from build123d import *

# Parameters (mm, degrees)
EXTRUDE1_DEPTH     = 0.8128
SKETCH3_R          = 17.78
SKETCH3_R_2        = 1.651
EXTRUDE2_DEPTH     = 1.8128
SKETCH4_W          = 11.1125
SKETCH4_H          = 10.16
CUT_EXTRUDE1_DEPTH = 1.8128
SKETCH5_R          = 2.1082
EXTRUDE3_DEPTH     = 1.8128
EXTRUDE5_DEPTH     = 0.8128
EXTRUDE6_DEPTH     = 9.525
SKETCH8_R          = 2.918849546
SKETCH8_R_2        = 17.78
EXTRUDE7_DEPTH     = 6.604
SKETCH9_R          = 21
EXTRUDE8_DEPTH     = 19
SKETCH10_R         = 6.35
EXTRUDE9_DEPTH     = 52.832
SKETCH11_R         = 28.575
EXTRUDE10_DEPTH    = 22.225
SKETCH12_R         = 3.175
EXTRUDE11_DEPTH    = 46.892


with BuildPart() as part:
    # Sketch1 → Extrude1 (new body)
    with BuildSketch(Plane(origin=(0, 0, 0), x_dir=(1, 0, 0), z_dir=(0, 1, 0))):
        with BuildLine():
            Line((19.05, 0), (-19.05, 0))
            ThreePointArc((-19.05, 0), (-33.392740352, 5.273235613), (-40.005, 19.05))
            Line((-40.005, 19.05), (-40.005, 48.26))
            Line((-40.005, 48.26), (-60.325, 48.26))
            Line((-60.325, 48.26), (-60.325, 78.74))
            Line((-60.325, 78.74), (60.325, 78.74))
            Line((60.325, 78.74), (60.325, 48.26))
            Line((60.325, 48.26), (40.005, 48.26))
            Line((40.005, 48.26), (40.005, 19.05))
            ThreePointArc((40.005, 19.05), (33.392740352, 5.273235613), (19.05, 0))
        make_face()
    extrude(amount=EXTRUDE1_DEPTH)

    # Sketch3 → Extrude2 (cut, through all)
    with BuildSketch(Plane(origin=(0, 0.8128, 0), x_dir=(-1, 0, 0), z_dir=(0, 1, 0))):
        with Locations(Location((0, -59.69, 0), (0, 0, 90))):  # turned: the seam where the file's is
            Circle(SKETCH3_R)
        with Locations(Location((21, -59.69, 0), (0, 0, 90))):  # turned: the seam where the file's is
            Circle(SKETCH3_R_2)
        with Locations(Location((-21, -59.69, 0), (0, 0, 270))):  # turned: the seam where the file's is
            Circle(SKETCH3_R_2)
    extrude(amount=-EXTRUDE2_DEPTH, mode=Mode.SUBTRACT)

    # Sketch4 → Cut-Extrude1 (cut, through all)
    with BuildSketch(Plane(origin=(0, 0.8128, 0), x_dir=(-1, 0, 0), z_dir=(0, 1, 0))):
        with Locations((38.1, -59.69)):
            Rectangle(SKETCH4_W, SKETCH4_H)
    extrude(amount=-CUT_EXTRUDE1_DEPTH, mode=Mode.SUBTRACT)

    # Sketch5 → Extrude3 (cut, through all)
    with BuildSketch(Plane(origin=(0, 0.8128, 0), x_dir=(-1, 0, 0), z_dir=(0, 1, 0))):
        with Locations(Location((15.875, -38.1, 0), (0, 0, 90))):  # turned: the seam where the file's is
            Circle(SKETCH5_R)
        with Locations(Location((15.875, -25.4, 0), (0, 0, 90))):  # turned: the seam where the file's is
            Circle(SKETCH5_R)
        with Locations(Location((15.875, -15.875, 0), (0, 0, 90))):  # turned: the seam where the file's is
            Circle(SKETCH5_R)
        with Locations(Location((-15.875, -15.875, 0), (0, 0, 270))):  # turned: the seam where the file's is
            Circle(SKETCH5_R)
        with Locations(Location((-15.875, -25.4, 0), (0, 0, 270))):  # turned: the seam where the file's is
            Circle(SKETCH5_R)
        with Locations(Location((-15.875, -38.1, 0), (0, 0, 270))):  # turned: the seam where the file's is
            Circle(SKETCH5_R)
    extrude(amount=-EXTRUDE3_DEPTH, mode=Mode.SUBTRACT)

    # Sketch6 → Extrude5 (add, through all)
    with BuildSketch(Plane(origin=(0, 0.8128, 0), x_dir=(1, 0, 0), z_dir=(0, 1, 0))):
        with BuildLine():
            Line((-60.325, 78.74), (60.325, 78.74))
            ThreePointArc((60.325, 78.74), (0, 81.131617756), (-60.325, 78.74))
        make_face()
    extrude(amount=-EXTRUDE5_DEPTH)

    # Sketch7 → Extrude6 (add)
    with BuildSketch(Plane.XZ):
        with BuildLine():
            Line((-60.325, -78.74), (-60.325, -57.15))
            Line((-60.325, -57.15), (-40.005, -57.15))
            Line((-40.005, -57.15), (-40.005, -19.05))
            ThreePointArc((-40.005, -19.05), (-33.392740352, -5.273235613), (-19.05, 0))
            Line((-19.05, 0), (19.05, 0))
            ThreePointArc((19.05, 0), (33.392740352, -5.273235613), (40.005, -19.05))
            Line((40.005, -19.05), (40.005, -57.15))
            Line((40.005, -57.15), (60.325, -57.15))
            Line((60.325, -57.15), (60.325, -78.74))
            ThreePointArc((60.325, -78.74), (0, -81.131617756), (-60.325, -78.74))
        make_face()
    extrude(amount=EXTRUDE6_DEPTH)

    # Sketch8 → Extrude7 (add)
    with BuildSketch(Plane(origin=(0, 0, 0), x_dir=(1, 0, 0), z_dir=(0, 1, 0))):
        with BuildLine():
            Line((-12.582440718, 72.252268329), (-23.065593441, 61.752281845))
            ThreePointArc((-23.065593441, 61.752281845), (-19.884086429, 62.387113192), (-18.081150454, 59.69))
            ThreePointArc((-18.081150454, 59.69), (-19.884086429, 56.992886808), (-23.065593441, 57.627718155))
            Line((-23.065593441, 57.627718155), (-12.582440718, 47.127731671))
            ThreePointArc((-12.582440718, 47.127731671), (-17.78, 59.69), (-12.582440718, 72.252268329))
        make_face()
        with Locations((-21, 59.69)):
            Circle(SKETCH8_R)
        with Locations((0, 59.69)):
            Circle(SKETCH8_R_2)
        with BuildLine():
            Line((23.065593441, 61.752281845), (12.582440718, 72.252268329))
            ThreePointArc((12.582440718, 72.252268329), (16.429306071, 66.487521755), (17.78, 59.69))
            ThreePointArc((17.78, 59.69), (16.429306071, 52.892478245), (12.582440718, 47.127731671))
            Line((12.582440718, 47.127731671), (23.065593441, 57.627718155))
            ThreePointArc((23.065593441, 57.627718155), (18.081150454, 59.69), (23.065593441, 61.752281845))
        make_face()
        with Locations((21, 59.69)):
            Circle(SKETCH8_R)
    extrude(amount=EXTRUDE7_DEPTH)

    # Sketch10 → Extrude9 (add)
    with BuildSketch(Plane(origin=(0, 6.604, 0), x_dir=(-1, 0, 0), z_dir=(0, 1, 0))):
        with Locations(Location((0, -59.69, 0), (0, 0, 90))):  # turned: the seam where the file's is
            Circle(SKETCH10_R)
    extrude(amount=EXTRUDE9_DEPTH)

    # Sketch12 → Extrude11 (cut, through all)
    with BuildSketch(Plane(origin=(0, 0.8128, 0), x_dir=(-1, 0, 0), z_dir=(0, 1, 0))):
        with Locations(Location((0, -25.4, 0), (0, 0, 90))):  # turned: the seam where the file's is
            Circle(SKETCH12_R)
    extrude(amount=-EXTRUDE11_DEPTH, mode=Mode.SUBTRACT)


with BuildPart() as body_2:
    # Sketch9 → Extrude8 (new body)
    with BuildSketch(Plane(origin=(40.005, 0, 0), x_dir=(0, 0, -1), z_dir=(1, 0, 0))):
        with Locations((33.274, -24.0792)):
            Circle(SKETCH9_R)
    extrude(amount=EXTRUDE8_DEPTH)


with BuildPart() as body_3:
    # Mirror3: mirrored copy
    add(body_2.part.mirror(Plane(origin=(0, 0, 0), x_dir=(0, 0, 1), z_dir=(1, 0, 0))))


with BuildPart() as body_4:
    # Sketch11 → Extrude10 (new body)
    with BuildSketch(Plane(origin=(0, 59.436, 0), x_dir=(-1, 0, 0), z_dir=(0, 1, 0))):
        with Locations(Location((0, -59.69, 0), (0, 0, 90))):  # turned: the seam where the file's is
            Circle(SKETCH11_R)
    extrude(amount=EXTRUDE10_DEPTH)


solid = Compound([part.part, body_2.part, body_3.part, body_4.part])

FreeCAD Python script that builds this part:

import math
import FreeCAD as App
import Part
import Sketcher
from FreeCAD import Vector
Q = App.Units.Quantity


def add_polygon(sketch, points):
    """Adds a closed chain of lines whose ends are joined by coincident constraints."""
    first, n = sketch.GeometryCount, len(points)
    for a, b in zip(points, points[1:] + points[:1]):
        sketch.addGeometry(Part.LineSegment(App.Vector(*a, 0), App.Vector(*b, 0)), False)
    for i in range(n):
        sketch.addConstraint(Sketcher.Constraint("Coincident", first + i, 2, first + (i + 1) % n, 1))

doc = App.newDocument("Part")
body = doc.addObject("PartDesign::Body", "Body")

sketch1 = doc.addObject("Sketcher::SketchObject", "Sketch")
body.addObject(sketch1)
sketch1.AttachmentSupport = (doc.XZ_Plane, [""])
sketch1.MapMode = "FlatFace"
sketch1.addGeometry(Part.LineSegment(Vector(-19, 0, 0), Vector(19, 0, 0)), False)
sketch1.addGeometry(Part.ArcOfCircle(Part.Circle(Vector(20, -20, 0), Vector(0, 0, 1), 20), math.radians(4), math.radians(92)), False)
sketch1.addGeometry(Part.LineSegment(Vector(40, -19, 0), Vector(40, -48, 0)), False)
sketch1.addGeometry(Part.LineSegment(Vector(40, -48, 0), Vector(60, -48, 0)), False)
sketch1.addGeometry(Part.LineSegment(Vector(60, -48, 0), Vector(60, -79, 0)), False)
sketch1.addGeometry(Part.LineSegment(Vector(60, -79, 0), Vector(-60, -79, 0)), False)
sketch1.addGeometry(Part.LineSegment(Vector(-60, -79, 0), Vector(-60, -48, 0)), False)
sketch1.addGeometry(Part.LineSegment(Vector(-60, -48, 0), Vector(-40, -48, 0)), False)
sketch1.addGeometry(Part.LineSegment(Vector(-40, -48, 0), Vector(-40, -19, 0)), False)
sketch1.addGeometry(Part.ArcOfCircle(Part.Circle(Vector(-20, -20, 0), Vector(0, 0, 1), 20), math.radians(88), math.radians(176)), False)
sketch1.addConstraint(Sketcher.Constraint("Coincident", 0, 2, 1, 2))
sketch1.addConstraint(Sketcher.Constraint("Coincident", 1, 1, 2, 1))
sketch1.addConstraint(Sketcher.Constraint("Coincident", 2, 2, 3, 1))
sketch1.addConstraint(Sketcher.Constraint("Coincident", 3, 2, 4, 1))
sketch1.addConstraint(Sketcher.Constraint("Coincident", 4, 2, 5, 1))
sketch1.addConstraint(Sketcher.Constraint("Coincident", 5, 2, 6, 1))
sketch1.addConstraint(Sketcher.Constraint("Coincident", 6, 2, 7, 1))
sketch1.addConstraint(Sketcher.Constraint("Coincident", 7, 2, 8, 1))
sketch1.addConstraint(Sketcher.Constraint("Coincident", 8, 2, 9, 2))
sketch1.addConstraint(Sketcher.Constraint("Coincident", 9, 1, 0, 1))
sketch1.addConstraint(Sketcher.Constraint("Horizontal", 0))
sketch1.addConstraint(Sketcher.Constraint("Vertical", 2))
sketch1.addConstraint(Sketcher.Constraint("Horizontal", 3))
sketch1.addConstraint(Sketcher.Constraint("Vertical", 4))
sketch1.addConstraint(Sketcher.Constraint("Horizontal", 5))
sketch1.addConstraint(Sketcher.Constraint("Vertical", 6))
sketch1.addConstraint(Sketcher.Constraint("Horizontal", 7))
sketch1.addConstraint(Sketcher.Constraint("Vertical", 8))
sketch1.addConstraint(Sketcher.Constraint("Equal", 1, 9))
sketch1.addConstraint(Sketcher.Constraint("Symmetric", 0, 2, 9, 1, -1, 1))
sketch1.addConstraint(Sketcher.Constraint("Symmetric", 3, 2, 6, 2, -2))
sketch1.addConstraint(Sketcher.Constraint("Symmetric", 1, 1, 8, 2, -2))
sketch1.addConstraint(Sketcher.Constraint("Radius", 1, Q("0.8 in")))
sketch1.addConstraint(Sketcher.Constraint("DistanceX", 0, 1, 0, 2, Q("1.5 in")))
sketch1.addConstraint(Sketcher.Constraint("DistanceX", 3, 1, 3, 2, Q("0.8 in")))
sketch1.addConstraint(Sketcher.Constraint("DistanceY", 4, 2, 4, 1, Q("1.2 in")))
sketch1.addConstraint(Sketcher.Constraint("DistanceX", 5, 2, 5, 1, Q("4.75 in")))
sketch1.addConstraint(Sketcher.Constraint("DistanceY", 2, 2, 2, 1, Q("1.15 in")))
sketch1.addConstraint(Sketcher.Constraint("DistanceY", 2, 2, -1, 1, Q("1.9 in")))
pad1 = doc.addObject("PartDesign::Pad", "Pad")
body.addObject(pad1)
pad1.Profile = sketch1
pad1.Length = Q("0.032 in")
pad1.Reversed = True

sketch2 = doc.addObject("Sketcher::SketchObject", "Sketch001")
body.addObject(sketch2)
sketch2.AttachmentSupport = (doc.XZ_Plane, [""])
sketch2.MapMode = "FlatFace"
sketch2.AttachmentOffset = App.Placement(Vector(0, 0, -0.032 * 25.4), App.Rotation())
sketch2.addGeometry(Part.Circle(Vector(0, -59.7, 0), Vector(0, 0, 1), 17.8), False)
sketch2.addGeometry(Part.Circle(Vector(-21, -59.7, 0), Vector(0, 0, 1), 1.7), False)
sketch2.addGeometry(Part.Circle(Vector(21, -59.7, 0), Vector(0, 0, 1), 1.7), False)
sketch2.addConstraint(Sketcher.Constraint("Equal", 1, 2))
sketch2.addConstraint(Sketcher.Constraint("Symmetric", 1, 3, 2, 3, -2))
sketch2.addConstraint(Sketcher.Constraint("PointOnObject", 0, 3, -2))
sketch2.addConstraint(Sketcher.Constraint("Horizontal", 0, 3, 1, 3))
sketch2.addConstraint(Sketcher.Constraint("Diameter", 0, Q("1.4 in")))
sketch2.addConstraint(Sketcher.Constraint("Diameter", 1, Q("0.13 in")))
sketch2.addConstraint(Sketcher.Constraint("DistanceY", 0, 3, -1, 1, Q("2.35 in")))
sketch2.addConstraint(Sketcher.Constraint("DistanceX", 1, 3, -1, 1, Q("21 mm")))
pocket1 = doc.addObject("PartDesign::Pocket", "Pocket")
body.addObject(pocket1)
pocket1.Profile = sketch2
pocket1.Type = "ThroughAll"
pocket1.Reversed = True

sketch3 = doc.addObject("Sketcher::SketchObject", "Sketch002")
body.addObject(sketch3)
sketch3.AttachmentSupport = (doc.XZ_Plane, [""])
sketch3.MapMode = "FlatFace"
sketch3.AttachmentOffset = App.Placement(Vector(0, 0, -0.032 * 25.4), App.Rotation())
add_polygon(sketch3, [(-33, -55), (-33, -65), (-44, -65), (-44, -55)])
sketch3.addConstraint(Sketcher.Constraint("Vertical", 0))
sketch3.addConstraint(Sketcher.Constraint("Horizontal", 1))
sketch3.addConstraint(Sketcher.Constraint("Vertical", 2))
sketch3.addConstraint(Sketcher.Constraint("Horizontal", 3))
sketch3.addConstraint(Sketcher.Constraint("DistanceY", 0, 2, 0, 1, Q("0.4 in")))
sketch3.addConstraint(Sketcher.Constraint("DistanceX", 1, 2, 1, 1, Q("0.4375 in")))
sketch3.addConstraint(Sketcher.Constraint("DistanceY", 0, 2, -1, 1, Q("2.55 in")))
sketch3.addConstraint(Sketcher.Constraint("DistanceX", 0, 2, -1, 1, Q("1.28125 in")))
pocket2 = doc.addObject("PartDesign::Pocket", "Pocket001")
body.addObject(pocket2)
pocket2.Profile = sketch3
pocket2.Type = "ThroughAll"
pocket2.Reversed = True

sketch4 = doc.addObject("Sketcher::SketchObject", "Sketch003")
body.addObject(sketch4)
sketch4.AttachmentSupport = (doc.XZ_Plane, [""])
sketch4.MapMode = "FlatFace"
sketch4.AttachmentOffset = App.Placement(Vector(0, 0, -0.032 * 25.4), App.Rotation())
sketch4.addGeometry(Part.Circle(Vector(-15.9, -38.1, 0), Vector(0, 0, 1), 2.1), False)
sketch4.addGeometry(Part.Circle(Vector(-15.9, -25.4, 0), Vector(0, 0, 1), 2.1), False)
sketch4.addGeometry(Part.Circle(Vector(-15.9, -15.9, 0), Vector(0, 0, 1), 2.1), False)
sketch4.addGeometry(Part.Circle(Vector(15.9, -15.9, 0), Vector(0, 0, 1), 2.1), False)
sketch4.addGeometry(Part.Circle(Vector(15.9, -25.4, 0), Vector(0, 0, 1), 2.1), False)
sketch4.addGeometry(Part.Circle(Vector(15.9, -38.1, 0), Vector(0, 0, 1), 2.1), False)
sketch4.addConstraint(Sketcher.Constraint("Equal", 0, 1))
sketch4.addConstraint(Sketcher.Constraint("Equal", 1, 2))
sketch4.addConstraint(Sketcher.Constraint("Equal", 2, 3))
sketch4.addConstraint(Sketcher.Constraint("Equal", 3, 4))
sketch4.addConstraint(Sketcher.Constraint("Equal", 4, 5))
sketch4.addConstraint(Sketcher.Constraint("Symmetric", 2, 3, 3, 3, -2))
sketch4.addConstraint(Sketcher.Constraint("Symmetric", 1, 3, 4, 3, -2))
sketch4.addConstraint(Sketcher.Constraint("Symmetric", 0, 3, 5, 3, -2))
sketch4.addConstraint(Sketcher.Constraint("Vertical", 0, 3, 1, 3))
sketch4.addConstraint(Sketcher.Constraint("Vertical", 1, 3, 2, 3))
sketch4.addConstraint(Sketcher.Constraint("Diameter", 0, Q("0.166 in")))
sketch4.addConstraint(Sketcher.Constraint("DistanceY", 1, 3, -1, 1, Q("1 in")))
sketch4.addConstraint(Sketcher.Constraint("DistanceY", 0, 3, -1, 1, Q("1.5 in")))
sketch4.addConstraint(Sketcher.Constraint("DistanceX", 2, 3, 3, 3, Q("1.25 in")))
sketch4.addConstraint(Sketcher.Constraint("DistanceY", 2, 3, -1, 1, Q("0.625 in")))
pocket3 = doc.addObject("PartDesign::Pocket", "Pocket002")
body.addObject(pocket3)
pocket3.Profile = sketch4
pocket3.Type = "ThroughAll"
pocket3.Reversed = True

sketch5 = doc.addObject("Sketcher::SketchObject", "Sketch004")
body.addObject(sketch5)
sketch5.AttachmentSupport = (doc.XZ_Plane, [""])
sketch5.MapMode = "FlatFace"
sketch5.AttachmentOffset = App.Placement(Vector(0, 0, -0.032 * 25.4), App.Rotation())
sketch5.addGeometry(Part.LineSegment(Vector(-60, -79, 0), Vector(60, -79, 0)), False)
sketch5.addGeometry(Part.ArcOfCircle(Part.Circle(Vector(0, 681, 0), Vector(0, 0, 1), 762), math.radians(-94.54), math.radians(-85.46)), False)
sketch5.addConstraint(Sketcher.Constraint("Coincident", 0, 1, 1, 1))
sketch5.addConstraint(Sketcher.Constraint("Coincident", 1, 2, 0, 2))
sketch5.addConstraint(Sketcher.Constraint("Horizontal", 0))
sketch5.addConstraint(Sketcher.Constraint("PointOnObject", 1, 3, -2))
sketch5.addConstraint(Sketcher.Constraint("Radius", 1, Q("30 in")))
sketch5.addConstraint(Sketcher.Constraint("DistanceX", 0, 1, 0, 2, Q("4.75 in")))
sketch5.addConstraint(Sketcher.Constraint("DistanceY", 0, 1, -1, 1, Q("3.1 in")))
pad2 = doc.addObject("PartDesign::Pad", "Pad001")
body.addObject(pad2)
pad2.Profile = sketch5
pad2.Length = Q("0.032 in")

sketch6 = doc.addObject("Sketcher::SketchObject", "Sketch005")
body.addObject(sketch6)
sketch6.AttachmentSupport = (doc.XZ_Plane, [""])
sketch6.MapMode = "FlatFace"
sketch6.addGeometry(Part.LineSegment(Vector(-60, -57, 0), Vector(-60, -79, 0)), False)
sketch6.addGeometry(Part.ArcOfCircle(Part.Circle(Vector(0, 681, 0), Vector(0, 0, 1), 762), math.radians(-94.54), math.radians(-85.46)), False)
sketch6.addGeometry(Part.LineSegment(Vector(60, -79, 0), Vector(60, -57, 0)), False)
sketch6.addGeometry(Part.LineSegment(Vector(60, -57, 0), Vector(40, -57, 0)), False)
sketch6.addGeometry(Part.LineSegment(Vector(40, -57, 0), Vector(40, -19, 0)), False)
sketch6.addGeometry(Part.ArcOfCircle(Part.Circle(Vector(20, -20, 0), Vector(0, 0, 1), 20), math.radians(4), math.radians(92)), False)
sketch6.addGeometry(Part.LineSegment(Vector(19, 0, 0), Vector(-19, 0, 0)), False)
sketch6.addGeometry(Part.ArcOfCircle(Part.Circle(Vector(-20, -20, 0), Vector(0, 0, 1), 20), math.radians(88), math.radians(176)), False)
sketch6.addGeometry(Part.LineSegment(Vector(-40, -19, 0), Vector(-40, -57, 0)), False)
sketch6.addGeometry(Part.LineSegment(Vector(-40, -57, 0), Vector(-60, -57, 0)), False)
sketch6.addConstraint(Sketcher.Constraint("Coincident", 0, 2, 1, 1))
sketch6.addConstraint(Sketcher.Constraint("Coincident", 1, 2, 2, 1))
sketch6.addConstraint(Sketcher.Constraint("Coincident", 2, 2, 3, 1))
sketch6.addConstraint(Sketcher.Constraint("Coincident", 3, 2, 4, 1))
sketch6.addConstraint(Sketcher.Constraint("Coincident", 4, 2, 5, 1))
sketch6.addConstraint(Sketcher.Constraint("Coincident", 5, 2, 6, 1))
sketch6.addConstraint(Sketcher.Constraint("Coincident", 6, 2, 7, 1))
sketch6.addConstraint(Sketcher.Constraint("Coincident", 7, 2, 8, 1))
sketch6.addConstraint(Sketcher.Constraint("Coincident", 8, 2, 9, 1))
sketch6.addConstraint(Sketcher.Constraint("Coincident", 9, 2, 0, 1))
sketch6.addConstraint(Sketcher.Constraint("Vertical", 0))
sketch6.addConstraint(Sketcher.Constraint("Vertical", 2))
sketch6.addConstraint(Sketcher.Constraint("Horizontal", 3))
sketch6.addConstraint(Sketcher.Constraint("Vertical", 4))
sketch6.addConstraint(Sketcher.Constraint("Horizontal", 6))
sketch6.addConstraint(Sketcher.Constraint("Vertical", 8))
sketch6.addConstraint(Sketcher.Constraint("Horizontal", 9))
sketch6.addConstraint(Sketcher.Constraint("Equal", 5, 7))
sketch6.addConstraint(Sketcher.Constraint("Symmetric", 5, 2, 6, 2, -1, 1))
sketch6.addConstraint(Sketcher.Constraint("Symmetric", 4, 2, 7, 2, -2))
sketch6.addConstraint(Sketcher.Constraint("Symmetric", 2, 2, 9, 2, -2))
sketch6.addConstraint(Sketcher.Constraint("PointOnObject", 1, 3, -2))
sketch6.addConstraint(Sketcher.Constraint("Equal", 6, 4))
sketch6.addConstraint(Sketcher.Constraint("Radius", 1, Q("30 in")))
sketch6.addConstraint(Sketcher.Constraint("Radius", 5, Q("0.8 in")))
sketch6.addConstraint(Sketcher.Constraint("DistanceX", 3, 2, 3, 1, Q("0.8 in")))
sketch6.addConstraint(Sketcher.Constraint("DistanceX", 6, 2, 6, 1, Q("1.5 in")))
sketch6.addConstraint(Sketcher.Constraint("DistanceY", 0, 2, 0, 1, Q("0.85 in")))
sketch6.addConstraint(Sketcher.Constraint("DistanceY", 0, 2, -1, 1, Q("3.1 in")))
sketch6.addConstraint(Sketcher.Constraint("DistanceX", 0, 2, 2, 2, Q("4.75 in")))
pad3 = doc.addObject("PartDesign::Pad", "Pad002")
body.addObject(pad3)
pad3.Profile = sketch6
pad3.Length = Q("0.375 in")

sketch7 = doc.addObject("Sketcher::SketchObject", "Sketch006")
body.addObject(sketch7)
sketch7.AttachmentSupport = (doc.XZ_Plane, [""])
sketch7.MapMode = "FlatFace"
sketch7.addGeometry(Part.LineSegment(Vector(-12.6, -72.3, 0), Vector(-23.1, -61.8, 0)), False)
sketch7.addGeometry(Part.ArcOfCircle(Part.Circle(Vector(-21, -59.7, 0), Vector(0, 0, 1), 2.9), math.radians(135), math.radians(225)), False)
sketch7.addGeometry(Part.LineSegment(Vector(-23.1, -57.6, 0), Vector(-12.6, -47.1, 0)), False)
sketch7.addGeometry(Part.ArcOfCircle(Part.Circle(Vector(0, -59.7, 0), Vector(0, 0, 1), 17.8), math.radians(45), math.radians(135)), False)
sketch7.addGeometry(Part.LineSegment(Vector(12.6, -47.1, 0), Vector(23.1, -57.6, 0)), False)
sketch7.addGeometry(Part.ArcOfCircle(Part.Circle(Vector(21, -59.7, 0), Vector(0, 0, 1), 2.9), math.radians(-45), math.radians(45)), False)
sketch7.addGeometry(Part.LineSegment(Vector(23.1, -61.8, 0), Vector(12.6, -72.3, 0)), False)
sketch7.addGeometry(Part.ArcOfCircle(Part.Circle(Vector(0, -59.7, 0), Vector(0, 0, 1), 17.8), math.radians(-135), math.radians(-45)), False)
sketch7.addConstraint(Sketcher.Constraint("Tangent", 0, 2, 1, 2))
sketch7.addConstraint(Sketcher.Constraint("Tangent", 1, 1, 2, 1))
sketch7.addConstraint(Sketcher.Constraint("Tangent", 2, 2, 3, 2))
sketch7.addConstraint(Sketcher.Constraint("Tangent", 3, 1, 4, 1))
sketch7.addConstraint(Sketcher.Constraint("Tangent", 4, 2, 5, 2))
sketch7.addConstraint(Sketcher.Constraint("Tangent", 5, 1, 6, 1))
sketch7.addConstraint(Sketcher.Constraint("Tangent", 6, 2, 7, 2))
sketch7.addConstraint(Sketcher.Constraint("Tangent", 7, 1, 0, 1))
sketch7.addConstraint(Sketcher.Constraint("Coincident", 7, 3, 3, 3))
sketch7.addConstraint(Sketcher.Constraint("Equal", 1, 5))
sketch7.addConstraint(Sketcher.Constraint("Equal", 3, 7))
sketch7.addConstraint(Sketcher.Constraint("Symmetric", 1, 3, 5, 3, -2))
sketch7.addConstraint(Sketcher.Constraint("PointOnObject", 3, 3, -2))
sketch7.addConstraint(Sketcher.Constraint("Parallel", 0, 4))
sketch7.addConstraint(Sketcher.Constraint("Radius", 3, Q("0.7 in")))
sketch7.addConstraint(Sketcher.Constraint("DistanceY", 1, 3, -1, 1, Q("2.35 in")))
sketch7.addConstraint(Sketcher.Constraint("Radius", 1, Q("2.91885 mm")))
sketch7.addConstraint(Sketcher.Constraint("DistanceX", 1, 3, 2, 2, Q("0.3314 in")))
pad4 = doc.addObject("PartDesign::Pad", "Pad003")
body.addObject(pad4)
pad4.Profile = sketch7
pad4.Length = Q("0.26 in")
pad4.Reversed = True

sketch8 = doc.addObject("Sketcher::SketchObject", "Sketch007")
body.addObject(sketch8)
sketch8.AttachmentSupport = (doc.XZ_Plane, [""])
sketch8.MapMode = "FlatFace"
sketch8.AttachmentOffset = App.Placement(Vector(0, 0, -0.26 * 25.4), App.Rotation())
sketch8.addGeometry(Part.Circle(Vector(0, -60, 0), Vector(0, 0, 1), 6), False)
sketch8.addConstraint(Sketcher.Constraint("PointOnObject", 0, 3, -2))
sketch8.addConstraint(Sketcher.Constraint("Diameter", 0, Q("0.5 in")))
sketch8.addConstraint(Sketcher.Constraint("DistanceY", 0, 3, -1, 1, Q("2.35 in")))
pad5 = doc.addObject("PartDesign::Pad", "Pad004")
body.addObject(pad5)
pad5.Profile = sketch8
pad5.Length = Q("2.08 in")
pad5.Reversed = True

sketch9 = doc.addObject("Sketcher::SketchObject", "Sketch008")
body.addObject(sketch9)
sketch9.AttachmentSupport = (doc.XZ_Plane, [""])
sketch9.MapMode = "FlatFace"
sketch9.AttachmentOffset = App.Placement(Vector(0, 0, -0.032 * 25.4), App.Rotation())
sketch9.addGeometry(Part.Circle(Vector(0, -25.4, 0), Vector(0, 0, 1), 3.2), False)
sketch9.addConstraint(Sketcher.Constraint("PointOnObject", 0, 3, -2))
sketch9.addConstraint(Sketcher.Constraint("Diameter", 0, Q("0.25 in")))
sketch9.addConstraint(Sketcher.Constraint("DistanceY", 0, 3, -1, 1, Q("1 in")))
pocket4 = doc.addObject("PartDesign::Pocket", "Pocket003")
body.addObject(pocket4)
pocket4.Profile = sketch9
pocket4.Type = "ThroughAll"
pocket4.Reversed = True
body2 = doc.addObject("PartDesign::Body", "Body001")

sketch10 = doc.addObject("Sketcher::SketchObject", "Sketch009")
body2.addObject(sketch10)
sketch10.AttachmentSupport = (doc.getObject("YZ_Plane001"), [""])
sketch10.MapMode = "FlatFace"
sketch10.AttachmentOffset = App.Placement(Vector(0, 0, 1.575 * 25.4), App.Rotation())
sketch10.addGeometry(Part.Circle(Vector(-24, -33, 0), Vector(0, 0, 1), 21), False)
sketch10.addConstraint(Sketcher.Constraint("Diameter", 0, Q("42 mm")))
sketch10.addConstraint(Sketcher.Constraint("DistanceY", 0, 3, -1, 1, Q("1.31 in")))
sketch10.addConstraint(Sketcher.Constraint("DistanceX", 0, 3, -1, 1, Q("0.948 in")))
pad6 = doc.addObject("PartDesign::Pad", "Pad005")
body2.addObject(pad6)
pad6.Profile = sketch10
pad6.Length = 19
body3 = doc.addObject("PartDesign::Body", "Body002")
doc.recompute()

mirroring = doc.addObject("Part::Mirroring", "Mirroring")
mirroring.Source = body2
mirroring.Base = Vector(0, 0, 0)
mirroring.Normal = Vector(1, 0, 0)
body3.BaseFeature = mirroring
doc.recompute()
body4 = doc.addObject("PartDesign::Body", "Body003")

sketch11 = doc.addObject("Sketcher::SketchObject", "Sketch010")
body4.addObject(sketch11)
sketch11.AttachmentSupport = (doc.getObject("XZ_Plane003"), [""])
sketch11.MapMode = "FlatFace"
sketch11.AttachmentOffset = App.Placement(Vector(0, 0, -2.34 * 25.4), App.Rotation())
sketch11.addGeometry(Part.Circle(Vector(0, -60, 0), Vector(0, 0, 1), 29), False)
sketch11.addConstraint(Sketcher.Constraint("PointOnObject", 0, 3, -2))
sketch11.addConstraint(Sketcher.Constraint("Diameter", 0, Q("2.25 in")))
sketch11.addConstraint(Sketcher.Constraint("DistanceY", 0, 3, -1, 1, Q("2.35 in")))
pad7 = doc.addObject("PartDesign::Pad", "Pad006")
body4.addObject(pad7)
pad7.Profile = sketch11
pad7.Length = Q("0.875 in")
pad7.Reversed = True
mirroring.Visibility = False

doc.recompute()
